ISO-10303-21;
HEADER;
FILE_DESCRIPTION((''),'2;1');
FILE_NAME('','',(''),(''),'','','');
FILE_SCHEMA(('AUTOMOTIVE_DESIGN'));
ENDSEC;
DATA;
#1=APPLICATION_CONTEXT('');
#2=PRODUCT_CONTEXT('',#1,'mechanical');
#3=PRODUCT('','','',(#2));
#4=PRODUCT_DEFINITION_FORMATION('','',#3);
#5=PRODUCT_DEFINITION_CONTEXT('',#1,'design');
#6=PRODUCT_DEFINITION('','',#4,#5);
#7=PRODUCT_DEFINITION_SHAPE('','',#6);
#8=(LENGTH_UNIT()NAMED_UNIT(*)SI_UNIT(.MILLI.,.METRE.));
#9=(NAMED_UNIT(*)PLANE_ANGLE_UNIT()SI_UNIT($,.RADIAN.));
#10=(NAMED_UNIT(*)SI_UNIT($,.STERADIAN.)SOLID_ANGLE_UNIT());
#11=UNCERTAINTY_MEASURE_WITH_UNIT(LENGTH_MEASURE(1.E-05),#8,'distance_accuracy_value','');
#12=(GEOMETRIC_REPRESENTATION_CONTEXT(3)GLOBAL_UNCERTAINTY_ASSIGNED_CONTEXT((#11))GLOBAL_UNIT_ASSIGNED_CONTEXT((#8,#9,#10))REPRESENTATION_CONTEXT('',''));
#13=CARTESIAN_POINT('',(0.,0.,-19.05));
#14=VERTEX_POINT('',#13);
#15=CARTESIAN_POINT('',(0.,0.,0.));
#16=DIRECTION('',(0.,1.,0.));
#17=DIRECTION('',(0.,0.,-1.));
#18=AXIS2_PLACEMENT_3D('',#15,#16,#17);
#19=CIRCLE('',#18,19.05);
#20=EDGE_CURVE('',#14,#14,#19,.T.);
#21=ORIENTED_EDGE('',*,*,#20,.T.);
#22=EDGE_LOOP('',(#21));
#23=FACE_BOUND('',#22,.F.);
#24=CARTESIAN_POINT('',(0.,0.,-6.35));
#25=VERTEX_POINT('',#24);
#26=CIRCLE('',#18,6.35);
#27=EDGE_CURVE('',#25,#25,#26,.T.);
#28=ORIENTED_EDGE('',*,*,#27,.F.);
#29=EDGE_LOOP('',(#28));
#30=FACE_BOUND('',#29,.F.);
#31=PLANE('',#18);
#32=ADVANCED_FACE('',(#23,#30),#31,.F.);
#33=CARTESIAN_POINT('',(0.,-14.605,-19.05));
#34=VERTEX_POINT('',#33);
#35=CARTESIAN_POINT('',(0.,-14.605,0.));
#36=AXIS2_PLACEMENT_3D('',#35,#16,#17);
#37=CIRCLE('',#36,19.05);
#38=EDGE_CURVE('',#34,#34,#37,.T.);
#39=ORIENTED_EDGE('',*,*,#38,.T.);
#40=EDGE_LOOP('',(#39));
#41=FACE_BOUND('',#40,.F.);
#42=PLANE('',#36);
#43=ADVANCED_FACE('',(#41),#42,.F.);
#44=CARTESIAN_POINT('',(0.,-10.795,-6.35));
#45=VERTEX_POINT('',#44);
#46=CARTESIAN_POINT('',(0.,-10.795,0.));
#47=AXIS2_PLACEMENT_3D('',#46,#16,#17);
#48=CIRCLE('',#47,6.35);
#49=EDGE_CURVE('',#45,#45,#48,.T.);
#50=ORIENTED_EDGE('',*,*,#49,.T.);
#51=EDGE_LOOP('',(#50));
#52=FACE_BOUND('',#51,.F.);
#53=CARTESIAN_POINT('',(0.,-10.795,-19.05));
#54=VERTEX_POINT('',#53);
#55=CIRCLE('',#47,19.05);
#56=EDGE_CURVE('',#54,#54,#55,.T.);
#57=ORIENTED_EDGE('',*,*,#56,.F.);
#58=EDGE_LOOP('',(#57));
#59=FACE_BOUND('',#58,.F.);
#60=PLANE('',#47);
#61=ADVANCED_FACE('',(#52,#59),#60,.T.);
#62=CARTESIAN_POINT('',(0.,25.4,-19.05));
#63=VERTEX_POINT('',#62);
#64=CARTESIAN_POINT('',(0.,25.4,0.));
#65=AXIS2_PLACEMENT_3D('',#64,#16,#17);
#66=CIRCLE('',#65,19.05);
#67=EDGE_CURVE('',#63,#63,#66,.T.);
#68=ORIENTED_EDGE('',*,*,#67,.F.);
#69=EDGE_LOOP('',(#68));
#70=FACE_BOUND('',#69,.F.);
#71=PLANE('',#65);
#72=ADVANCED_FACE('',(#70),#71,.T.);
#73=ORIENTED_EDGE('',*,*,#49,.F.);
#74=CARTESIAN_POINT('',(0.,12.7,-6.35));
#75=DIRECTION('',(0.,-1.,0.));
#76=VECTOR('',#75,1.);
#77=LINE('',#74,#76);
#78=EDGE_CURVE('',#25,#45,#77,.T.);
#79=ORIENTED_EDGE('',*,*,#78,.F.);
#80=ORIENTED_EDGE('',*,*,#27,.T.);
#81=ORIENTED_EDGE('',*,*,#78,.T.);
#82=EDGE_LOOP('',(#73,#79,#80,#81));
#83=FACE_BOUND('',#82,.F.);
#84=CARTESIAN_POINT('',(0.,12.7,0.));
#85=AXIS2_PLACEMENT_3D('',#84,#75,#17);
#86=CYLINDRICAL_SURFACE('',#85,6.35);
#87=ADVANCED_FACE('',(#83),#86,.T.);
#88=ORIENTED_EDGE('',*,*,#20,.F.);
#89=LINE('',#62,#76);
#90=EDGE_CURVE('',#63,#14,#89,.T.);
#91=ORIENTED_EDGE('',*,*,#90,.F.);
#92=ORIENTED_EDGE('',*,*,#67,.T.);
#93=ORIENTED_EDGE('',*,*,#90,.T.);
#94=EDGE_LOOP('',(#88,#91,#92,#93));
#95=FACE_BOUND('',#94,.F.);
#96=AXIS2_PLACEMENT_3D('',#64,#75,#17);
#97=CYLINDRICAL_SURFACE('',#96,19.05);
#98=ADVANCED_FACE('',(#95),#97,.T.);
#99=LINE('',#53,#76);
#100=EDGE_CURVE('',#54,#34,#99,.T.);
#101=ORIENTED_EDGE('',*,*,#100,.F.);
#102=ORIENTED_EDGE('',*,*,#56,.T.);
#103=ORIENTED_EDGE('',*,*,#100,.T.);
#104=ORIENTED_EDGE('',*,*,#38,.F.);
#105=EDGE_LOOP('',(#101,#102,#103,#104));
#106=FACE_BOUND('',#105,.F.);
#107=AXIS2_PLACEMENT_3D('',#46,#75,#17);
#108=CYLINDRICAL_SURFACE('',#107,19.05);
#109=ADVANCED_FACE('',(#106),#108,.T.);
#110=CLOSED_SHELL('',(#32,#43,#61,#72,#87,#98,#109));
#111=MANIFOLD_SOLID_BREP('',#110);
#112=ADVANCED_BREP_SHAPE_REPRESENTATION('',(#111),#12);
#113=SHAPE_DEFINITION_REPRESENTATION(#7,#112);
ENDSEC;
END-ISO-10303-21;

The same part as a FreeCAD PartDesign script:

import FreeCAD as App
import Part
import Sketcher
Q = App.Units.Quantity

doc = App.newDocument("Part")
body = doc.addObject("PartDesign::Body", "Body")

sketch1 = doc.addObject("Sketcher::SketchObject", "Sketch")
body.addObject(sketch1)
sketch1.AttachmentSupport = (doc.YZ_Plane, [""])
sketch1.MapMode = "FlatFace"
sketch1.addGeometry([
    Part.LineSegment(App.Vector(-14.6, 0, 0), App.Vector(-14.6, -19.1, 0)),
    Part.LineSegment(App.Vector(-14.6, -19.1, 0), App.Vector(-10.8, -19.1, 0)),
    Part.LineSegment(App.Vector(-10.8, -19.1, 0), App.Vector(-10.8, -6.3, 0)),
    Part.LineSegment(App.Vector(-10.8, -6.3, 0), App.Vector(0, -6.3, 0)),
    Part.LineSegment(App.Vector(0, -6.3, 0), App.Vector(0, -19.1, 0)),
    Part.LineSegment(App.Vector(0, -19.1, 0), App.Vector(25.4, -19.1, 0)),
    Part.LineSegment(App.Vector(25.4, -19.1, 0), App.Vector(25.4, 0, 0)),
    Part.LineSegment(App.Vector(25.4, 0, 0), App.Vector(-14.6, 0, 0)),
], False)
sketch1.addConstraint([
    Sketcher.Constraint("Coincident", 0, 2, 1, 1),
    Sketcher.Constraint("Coincident", 1, 2, 2, 1),
    Sketcher.Constraint("Coincident", 2, 2, 3, 1),
    Sketcher.Constraint("Coincident", 3, 2, 4, 1),
    Sketcher.Constraint("Coincident", 4, 2, 5, 1),
    Sketcher.Constraint("Coincident", 5, 2, 6, 1),
    Sketcher.Constraint("Coincident", 6, 2, 7, 1),
    Sketcher.Constraint("Coincident", 7, 2, 0, 1),
    Sketcher.Constraint("Vertical", 0),
    Sketcher.Constraint("Horizontal", 1),
    Sketcher.Constraint("Vertical", 2),
    Sketcher.Constraint("Horizontal", 3),
    Sketcher.Constraint("Vertical", 4),
    Sketcher.Constraint("Horizontal", 5),
    Sketcher.Constraint("Vertical", 6),
    Sketcher.Constraint("Horizontal", 7),
    Sketcher.Constraint("PointOnObject", 3, 2, -2),
    Sketcher.Constraint("PointOnObject", 6, 2, -1),
    Sketcher.Constraint("Horizontal", 1, 2, 4, 2),
    Sketcher.Constraint("DistanceX", 5, 1, 5, 2, Q("1 in")),
    Sketcher.Constraint("DistanceY", 2, 1, 2, 2, Q("0.5 in")),
    Sketcher.Constraint("DistanceX", 1, 1, 1, 2, Q("0.15 in")),
    Sketcher.Constraint("DistanceY", 0, 2, 0, 1, Q("0.75 in")),
    Sketcher.Constraint("DistanceX", 3, 1, 3, 2, Q("0.425 in")),
])
revolution = doc.addObject("PartDesign::Revolution", "Revolution")
body.addObject(revolution)
revolution.Profile = sketch1
revolution.ReferenceAxis = (sketch1, ["H_Axis"])
revolution.Angle = 360

doc.recompute()
